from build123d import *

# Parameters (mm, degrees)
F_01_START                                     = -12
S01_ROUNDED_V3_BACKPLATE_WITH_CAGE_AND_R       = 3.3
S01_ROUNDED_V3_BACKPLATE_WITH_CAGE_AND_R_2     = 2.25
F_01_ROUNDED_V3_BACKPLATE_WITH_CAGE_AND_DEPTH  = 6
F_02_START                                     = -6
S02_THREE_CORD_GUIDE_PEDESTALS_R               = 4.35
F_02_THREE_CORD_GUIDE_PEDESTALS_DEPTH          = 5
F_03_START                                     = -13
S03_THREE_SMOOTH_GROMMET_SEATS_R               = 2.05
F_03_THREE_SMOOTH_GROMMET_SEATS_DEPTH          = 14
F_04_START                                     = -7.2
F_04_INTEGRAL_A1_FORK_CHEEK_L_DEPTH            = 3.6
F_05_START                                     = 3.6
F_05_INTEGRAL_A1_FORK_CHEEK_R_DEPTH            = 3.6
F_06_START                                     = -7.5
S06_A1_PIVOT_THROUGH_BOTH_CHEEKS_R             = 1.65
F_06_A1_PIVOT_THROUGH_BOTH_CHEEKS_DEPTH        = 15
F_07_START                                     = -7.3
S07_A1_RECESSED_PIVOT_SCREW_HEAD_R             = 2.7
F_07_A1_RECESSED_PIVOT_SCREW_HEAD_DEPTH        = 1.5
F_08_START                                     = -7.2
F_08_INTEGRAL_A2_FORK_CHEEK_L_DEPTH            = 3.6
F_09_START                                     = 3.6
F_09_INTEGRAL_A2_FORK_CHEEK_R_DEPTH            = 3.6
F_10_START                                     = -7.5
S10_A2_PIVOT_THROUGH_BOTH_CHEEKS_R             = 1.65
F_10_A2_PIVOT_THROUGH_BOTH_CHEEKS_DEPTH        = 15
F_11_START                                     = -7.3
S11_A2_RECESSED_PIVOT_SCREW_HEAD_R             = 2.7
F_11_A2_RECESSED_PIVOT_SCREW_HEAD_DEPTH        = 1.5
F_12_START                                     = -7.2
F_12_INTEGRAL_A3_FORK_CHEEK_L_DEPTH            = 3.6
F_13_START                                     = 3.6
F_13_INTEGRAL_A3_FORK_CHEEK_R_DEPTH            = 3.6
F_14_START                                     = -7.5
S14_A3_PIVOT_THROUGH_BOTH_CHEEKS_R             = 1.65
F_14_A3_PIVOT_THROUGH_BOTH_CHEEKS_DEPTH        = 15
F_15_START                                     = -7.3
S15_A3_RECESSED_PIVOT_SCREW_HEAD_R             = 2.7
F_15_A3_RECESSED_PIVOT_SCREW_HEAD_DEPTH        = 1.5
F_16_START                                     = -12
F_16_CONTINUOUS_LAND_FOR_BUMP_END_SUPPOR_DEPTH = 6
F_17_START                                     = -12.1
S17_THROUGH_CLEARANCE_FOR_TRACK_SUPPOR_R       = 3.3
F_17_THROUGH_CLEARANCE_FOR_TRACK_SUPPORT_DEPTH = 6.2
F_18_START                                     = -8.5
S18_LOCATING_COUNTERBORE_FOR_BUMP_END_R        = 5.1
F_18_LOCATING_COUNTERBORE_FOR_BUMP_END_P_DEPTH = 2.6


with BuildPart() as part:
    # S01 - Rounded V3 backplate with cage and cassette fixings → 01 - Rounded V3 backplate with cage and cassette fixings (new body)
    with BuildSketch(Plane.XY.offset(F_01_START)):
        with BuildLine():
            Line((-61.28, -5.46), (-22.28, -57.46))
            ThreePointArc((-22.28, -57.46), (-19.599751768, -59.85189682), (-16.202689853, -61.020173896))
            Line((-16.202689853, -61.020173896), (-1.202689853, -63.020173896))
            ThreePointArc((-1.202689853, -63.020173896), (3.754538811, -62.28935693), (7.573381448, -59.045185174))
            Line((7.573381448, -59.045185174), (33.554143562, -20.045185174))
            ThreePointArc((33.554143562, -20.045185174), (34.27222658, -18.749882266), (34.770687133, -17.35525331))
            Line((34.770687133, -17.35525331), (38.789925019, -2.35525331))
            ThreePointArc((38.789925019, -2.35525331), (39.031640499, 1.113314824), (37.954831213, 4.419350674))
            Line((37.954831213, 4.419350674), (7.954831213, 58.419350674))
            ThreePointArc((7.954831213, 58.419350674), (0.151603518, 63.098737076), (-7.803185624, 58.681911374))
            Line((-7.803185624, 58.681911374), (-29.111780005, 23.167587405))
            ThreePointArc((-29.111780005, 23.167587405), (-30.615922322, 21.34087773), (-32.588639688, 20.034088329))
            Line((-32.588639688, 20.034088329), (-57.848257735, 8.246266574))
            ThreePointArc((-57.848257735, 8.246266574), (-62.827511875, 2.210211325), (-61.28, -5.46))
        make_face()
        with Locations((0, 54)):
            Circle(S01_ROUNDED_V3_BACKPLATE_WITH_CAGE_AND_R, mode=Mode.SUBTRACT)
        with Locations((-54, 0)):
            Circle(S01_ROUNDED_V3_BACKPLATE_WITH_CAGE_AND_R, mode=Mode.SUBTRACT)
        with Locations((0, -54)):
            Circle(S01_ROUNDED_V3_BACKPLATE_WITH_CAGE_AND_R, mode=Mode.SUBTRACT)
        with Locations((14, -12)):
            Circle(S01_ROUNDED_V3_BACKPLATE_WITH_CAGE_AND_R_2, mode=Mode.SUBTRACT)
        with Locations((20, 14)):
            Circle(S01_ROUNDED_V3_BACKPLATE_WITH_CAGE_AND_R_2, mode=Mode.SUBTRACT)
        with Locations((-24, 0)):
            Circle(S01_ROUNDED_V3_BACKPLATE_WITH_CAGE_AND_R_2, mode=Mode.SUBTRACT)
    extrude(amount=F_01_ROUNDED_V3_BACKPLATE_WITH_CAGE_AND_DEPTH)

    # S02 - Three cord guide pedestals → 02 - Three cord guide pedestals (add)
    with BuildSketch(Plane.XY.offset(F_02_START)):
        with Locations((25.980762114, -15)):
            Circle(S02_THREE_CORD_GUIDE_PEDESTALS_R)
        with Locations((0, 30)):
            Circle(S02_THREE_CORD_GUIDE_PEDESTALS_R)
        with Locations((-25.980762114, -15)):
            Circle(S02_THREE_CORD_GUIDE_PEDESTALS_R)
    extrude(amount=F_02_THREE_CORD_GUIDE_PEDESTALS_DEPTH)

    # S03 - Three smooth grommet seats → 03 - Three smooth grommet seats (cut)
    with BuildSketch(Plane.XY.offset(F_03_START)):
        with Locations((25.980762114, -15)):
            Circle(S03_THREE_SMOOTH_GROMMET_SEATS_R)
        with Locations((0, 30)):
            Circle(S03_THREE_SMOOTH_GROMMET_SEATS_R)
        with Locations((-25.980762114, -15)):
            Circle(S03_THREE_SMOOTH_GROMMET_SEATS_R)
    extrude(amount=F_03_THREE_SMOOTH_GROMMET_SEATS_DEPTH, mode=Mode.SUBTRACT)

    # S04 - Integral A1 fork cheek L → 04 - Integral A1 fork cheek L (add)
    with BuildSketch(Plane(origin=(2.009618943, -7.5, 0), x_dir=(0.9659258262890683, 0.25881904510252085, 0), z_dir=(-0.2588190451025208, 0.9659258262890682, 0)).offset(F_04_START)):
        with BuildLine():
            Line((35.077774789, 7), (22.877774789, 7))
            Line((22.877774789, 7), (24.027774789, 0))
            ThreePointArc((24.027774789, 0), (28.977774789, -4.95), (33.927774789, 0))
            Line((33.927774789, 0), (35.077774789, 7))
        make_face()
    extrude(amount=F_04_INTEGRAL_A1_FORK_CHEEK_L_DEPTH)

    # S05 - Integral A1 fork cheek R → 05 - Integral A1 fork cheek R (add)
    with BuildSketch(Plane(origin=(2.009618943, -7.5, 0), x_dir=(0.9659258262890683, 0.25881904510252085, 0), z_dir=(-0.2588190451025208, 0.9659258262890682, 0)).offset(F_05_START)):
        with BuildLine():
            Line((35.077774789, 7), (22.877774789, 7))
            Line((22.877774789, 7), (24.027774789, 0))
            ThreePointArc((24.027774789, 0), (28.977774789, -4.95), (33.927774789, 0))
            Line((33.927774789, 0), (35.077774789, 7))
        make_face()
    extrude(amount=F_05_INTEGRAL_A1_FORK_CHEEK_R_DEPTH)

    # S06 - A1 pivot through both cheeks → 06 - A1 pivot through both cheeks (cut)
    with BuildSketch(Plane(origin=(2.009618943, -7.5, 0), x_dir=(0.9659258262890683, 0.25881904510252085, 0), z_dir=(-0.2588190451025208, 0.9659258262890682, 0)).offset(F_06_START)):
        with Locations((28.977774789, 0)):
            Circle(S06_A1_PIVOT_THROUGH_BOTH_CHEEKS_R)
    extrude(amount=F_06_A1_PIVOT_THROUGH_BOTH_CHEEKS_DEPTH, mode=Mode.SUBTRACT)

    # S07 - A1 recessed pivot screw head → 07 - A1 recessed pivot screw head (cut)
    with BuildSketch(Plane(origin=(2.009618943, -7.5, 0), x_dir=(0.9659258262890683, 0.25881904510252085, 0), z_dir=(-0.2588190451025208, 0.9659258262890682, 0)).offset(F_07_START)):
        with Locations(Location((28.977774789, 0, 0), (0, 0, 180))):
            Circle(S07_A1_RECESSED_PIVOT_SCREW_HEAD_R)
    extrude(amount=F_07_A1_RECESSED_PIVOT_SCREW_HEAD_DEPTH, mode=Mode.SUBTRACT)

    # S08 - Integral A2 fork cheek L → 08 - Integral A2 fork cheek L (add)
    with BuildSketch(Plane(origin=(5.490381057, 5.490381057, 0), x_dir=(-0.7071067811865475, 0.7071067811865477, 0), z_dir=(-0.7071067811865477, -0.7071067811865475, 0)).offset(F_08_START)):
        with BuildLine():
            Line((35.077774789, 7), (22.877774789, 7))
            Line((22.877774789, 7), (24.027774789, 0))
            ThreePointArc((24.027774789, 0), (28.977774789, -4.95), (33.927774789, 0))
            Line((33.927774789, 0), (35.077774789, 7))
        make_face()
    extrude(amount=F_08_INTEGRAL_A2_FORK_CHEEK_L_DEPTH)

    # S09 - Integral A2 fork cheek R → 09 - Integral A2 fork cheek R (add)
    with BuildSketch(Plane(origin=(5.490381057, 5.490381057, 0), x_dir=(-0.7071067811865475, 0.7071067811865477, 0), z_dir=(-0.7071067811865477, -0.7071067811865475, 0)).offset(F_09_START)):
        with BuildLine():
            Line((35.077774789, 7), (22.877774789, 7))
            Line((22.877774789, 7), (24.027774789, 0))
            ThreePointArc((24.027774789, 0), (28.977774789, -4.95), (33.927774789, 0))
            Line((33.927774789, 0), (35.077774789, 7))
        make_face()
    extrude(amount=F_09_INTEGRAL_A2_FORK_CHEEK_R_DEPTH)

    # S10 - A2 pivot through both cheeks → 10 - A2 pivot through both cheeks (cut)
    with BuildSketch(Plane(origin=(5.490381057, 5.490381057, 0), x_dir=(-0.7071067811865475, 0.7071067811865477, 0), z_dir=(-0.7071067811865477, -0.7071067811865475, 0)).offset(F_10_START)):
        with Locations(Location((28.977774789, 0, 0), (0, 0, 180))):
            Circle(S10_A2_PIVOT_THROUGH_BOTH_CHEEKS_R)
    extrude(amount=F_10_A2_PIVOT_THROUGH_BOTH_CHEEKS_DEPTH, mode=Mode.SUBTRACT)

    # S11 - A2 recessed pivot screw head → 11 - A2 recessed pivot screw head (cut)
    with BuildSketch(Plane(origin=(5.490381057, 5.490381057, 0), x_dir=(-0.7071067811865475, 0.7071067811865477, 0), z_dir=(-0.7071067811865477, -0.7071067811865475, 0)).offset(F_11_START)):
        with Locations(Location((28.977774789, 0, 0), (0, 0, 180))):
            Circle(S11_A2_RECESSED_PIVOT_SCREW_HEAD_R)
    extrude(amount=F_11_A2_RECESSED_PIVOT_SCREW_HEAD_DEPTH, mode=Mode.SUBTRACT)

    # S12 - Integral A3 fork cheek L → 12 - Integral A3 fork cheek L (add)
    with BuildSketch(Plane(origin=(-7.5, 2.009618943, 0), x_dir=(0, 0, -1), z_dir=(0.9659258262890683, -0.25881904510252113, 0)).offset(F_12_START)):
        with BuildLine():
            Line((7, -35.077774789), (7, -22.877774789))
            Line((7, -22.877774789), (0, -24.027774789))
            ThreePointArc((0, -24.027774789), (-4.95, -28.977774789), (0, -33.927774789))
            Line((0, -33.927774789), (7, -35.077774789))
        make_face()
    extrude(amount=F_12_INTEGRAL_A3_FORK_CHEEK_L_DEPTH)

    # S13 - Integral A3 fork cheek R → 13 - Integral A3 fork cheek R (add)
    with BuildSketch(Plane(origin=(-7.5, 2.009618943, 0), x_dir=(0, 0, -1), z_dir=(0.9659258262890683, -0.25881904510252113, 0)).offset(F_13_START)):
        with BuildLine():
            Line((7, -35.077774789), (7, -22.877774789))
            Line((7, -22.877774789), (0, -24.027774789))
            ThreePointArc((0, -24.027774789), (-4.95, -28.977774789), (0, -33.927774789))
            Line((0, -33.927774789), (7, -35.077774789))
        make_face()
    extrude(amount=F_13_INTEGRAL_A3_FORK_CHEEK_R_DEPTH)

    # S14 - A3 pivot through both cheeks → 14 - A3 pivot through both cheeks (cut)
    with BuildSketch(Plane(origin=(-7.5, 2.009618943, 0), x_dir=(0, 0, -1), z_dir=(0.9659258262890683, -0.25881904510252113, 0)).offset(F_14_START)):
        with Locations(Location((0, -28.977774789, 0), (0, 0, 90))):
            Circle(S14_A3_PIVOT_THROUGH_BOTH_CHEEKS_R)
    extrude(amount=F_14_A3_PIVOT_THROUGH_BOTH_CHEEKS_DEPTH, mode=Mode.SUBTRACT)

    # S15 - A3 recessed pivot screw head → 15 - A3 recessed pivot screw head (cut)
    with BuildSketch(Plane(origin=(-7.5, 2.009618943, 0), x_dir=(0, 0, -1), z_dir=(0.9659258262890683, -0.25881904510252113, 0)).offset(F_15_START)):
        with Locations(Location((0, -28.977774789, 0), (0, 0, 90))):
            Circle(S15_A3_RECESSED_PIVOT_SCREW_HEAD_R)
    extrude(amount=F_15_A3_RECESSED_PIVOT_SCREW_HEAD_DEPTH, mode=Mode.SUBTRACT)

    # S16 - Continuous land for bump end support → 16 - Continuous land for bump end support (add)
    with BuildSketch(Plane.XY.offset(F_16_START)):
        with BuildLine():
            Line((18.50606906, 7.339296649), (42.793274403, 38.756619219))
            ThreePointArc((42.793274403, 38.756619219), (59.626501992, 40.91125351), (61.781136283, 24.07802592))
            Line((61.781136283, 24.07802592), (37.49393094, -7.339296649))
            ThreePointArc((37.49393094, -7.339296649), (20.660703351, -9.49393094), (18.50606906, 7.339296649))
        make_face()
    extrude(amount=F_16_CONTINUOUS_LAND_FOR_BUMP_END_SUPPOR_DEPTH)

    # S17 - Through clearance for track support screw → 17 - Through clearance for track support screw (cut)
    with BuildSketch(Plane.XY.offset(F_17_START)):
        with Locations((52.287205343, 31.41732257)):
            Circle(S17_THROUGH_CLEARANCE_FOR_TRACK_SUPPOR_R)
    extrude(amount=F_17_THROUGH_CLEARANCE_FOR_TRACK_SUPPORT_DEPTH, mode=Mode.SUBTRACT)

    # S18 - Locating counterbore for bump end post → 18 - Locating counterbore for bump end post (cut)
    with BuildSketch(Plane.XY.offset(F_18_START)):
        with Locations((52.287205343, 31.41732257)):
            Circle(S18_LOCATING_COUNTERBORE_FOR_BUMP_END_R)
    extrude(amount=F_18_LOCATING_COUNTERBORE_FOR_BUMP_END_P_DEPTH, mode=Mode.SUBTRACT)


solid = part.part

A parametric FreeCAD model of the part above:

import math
import FreeCAD as App
import Part
import Sketcher
from FreeCAD import Vector
Q = App.Units.Quantity

doc = App.newDocument("Part")
body = doc.addObject("PartDesign::Body", "Body")

# Sketch on XY plane
sketch1 = body.newObject("Sketcher::SketchObject", "Sketch")
sketch1.AttachmentSupport = (doc.getObject("XY_Plane"), [""])
sketch1.MapMode = "FlatFace"
sketch1.AttachmentOffset = App.Placement(Vector(0, 0, -12), App.Rotation())
sketch1.addGeometry(Part.LineSegment(Vector(-61.3, -5.5, 0), Vector(-22.3, -57.5, 0)), False)
sketch1.addGeometry(Part.ArcOfCircle(Part.Circle(Vector(-15, -52, 0), Vector(0, 0, 1), 9.1), math.radians(-143), math.radians(-98)), False)
sketch1.addGeometry(Part.LineSegment(Vector(-16.2, -61, 0), Vector(-1.2, -63, 0)), False)
sketch1.addGeometry(Part.ArcOfCircle(Part.Circle(Vector(0, -54, 0), Vector(0, 0, 1), 9.1), math.radians(-98), math.radians(-34)), False)
sketch1.addGeometry(Part.LineSegment(Vector(7.6, -59, 0), Vector(33.6, -20, 0)), False)
sketch1.addGeometry(Part.ArcOfCircle(Part.Circle(Vector(26, -15, 0), Vector(0, 0, 1), 9.1), math.radians(-33.67), math.radians(-15)), False)
sketch1.addGeometry(Part.LineSegment(Vector(34.8, -17.4, 0), Vector(38.8, -2.4, 0)), False)
sketch1.addGeometry(Part.ArcOfCircle(Part.Circle(Vector(30, 0, 0), Vector(0, 0, 1), 9.1), math.radians(-15), math.radians(29)), False)
sketch1.addGeometry(Part.LineSegment(Vector(38, 4.4, 0), Vector(8, 58.4, 0)), False)
sketch1.addGeometry(Part.ArcOfCircle(Part.Circle(Vector(0, 54, 0), Vector(0, 0, 1), 9.1), math.radians(29), math.radians(149)), False)
sketch1.addGeometry(Part.LineSegment(Vector(-7.8, 58.7, 0), Vector(-29.1, 23.2, 0)), False)
sketch1.addGeometry(Part.ArcOfCircle(Part.Circle(Vector(-36, 27.3, 0), Vector(0, 0, 1), 8), math.radians(-65), math.radians(-31)), False)
sketch1.addGeometry(Part.LineSegment(Vector(-32.6, 20, 0), Vector(-57.8, 8.2, 0)), False)
sketch1.addGeometry(Part.ArcOfCircle(Part.Circle(Vector(-54, 0, 0), Vector(0, 0, 1), 9.1), math.radians(115), math.radians(217)), False)
sketch1.addGeometry(Part.Circle(Vector(0, -54, 0), Vector(0, 0, 1), 3.3), False)
sketch1.addGeometry(Part.Circle(Vector(14, -12, 0), Vector(0, 0, 1), 2.2), False)
sketch1.addGeometry(Part.Circle(Vector(-54, 0, 0), Vector(0, 0, 1), 3.3), False)
sketch1.addGeometry(Part.Circle(Vector(-24, 0, 0), Vector(0, 0, 1), 2.2), False)
sketch1.addGeometry(Part.Circle(Vector(20, 14, 0), Vector(0, 0, 1), 2.2), False)
sketch1.addGeometry(Part.Circle(Vector(0, 54, 0), Vector(0, 0, 1), 3.3), False)
sketch1.addConstraint(Sketcher.Constraint("Tangent", 0, 2, 1, 1))
sketch1.addConstraint(Sketcher.Constraint("Tangent", 1, 2, 2, 1))
sketch1.addConstraint(Sketcher.Constraint("Tangent", 2, 2, 3, 1))
sketch1.addConstraint(Sketcher.Constraint("Tangent", 3, 2, 4, 1))
sketch1.addConstraint(Sketcher.Constraint("Tangent", 4, 2, 5, 1))
sketch1.addConstraint(Sketcher.Constraint("Tangent", 5, 2, 6, 1))
sketch1.addConstraint(Sketcher.Constraint("Tangent", 6, 2, 7, 1))
sketch1.addConstraint(Sketcher.Constraint("Tangent", 7, 2, 8, 1))
sketch1.addConstraint(Sketcher.Constraint("Tangent", 8, 2, 9, 1))
sketch1.addConstraint(Sketcher.Constraint("Tangent", 9, 2, 10, 1))
sketch1.addConstraint(Sketcher.Constraint("Tangent", 10, 2, 11, 2))
sketch1.addConstraint(Sketcher.Constraint("Tangent", 11, 1, 12, 1))
sketch1.addConstraint(Sketcher.Constraint("Tangent", 12, 2, 13, 1))
sketch1.addConstraint(Sketcher.Constraint("Tangent", 13, 2, 0, 1))
sketch1.addConstraint(Sketcher.Constraint("Coincident", 14, 3, 3, 3))
sketch1.addConstraint(Sketcher.Constraint("Coincident", 16, 3, 13, 3))
sketch1.addConstraint(Sketcher.Constraint("Coincident", 19, 3, 9, 3))
sketch1.addConstraint(Sketcher.Constraint("Equal", 1, 3))
sketch1.addConstraint(Sketcher.Constraint("Equal", 3, 5))
sketch1.addConstraint(Sketcher.Constraint("Equal", 5, 7))
sketch1.addConstraint(Sketcher.Constraint("Equal", 7, 9))
sketch1.addConstraint(Sketcher.Constraint("Equal", 9, 13))
sketch1.addConstraint(Sketcher.Constraint("Equal", 14, 16))
sketch1.addConstraint(Sketcher.Constraint("Equal", 15, 17))
sketch1.addConstraint(Sketcher.Constraint("Equal", 17, 18))
sketch1.addConstraint(Sketcher.Constraint("Equal", 16, 19))
sketch1.addConstraint(Sketcher.Constraint("Symmetric", 3, 3, 9, 3, -1, 1))
sketch1.addConstraint(Sketcher.Constraint("PointOnObject", 3, 3, -2))
sketch1.addConstraint(Sketcher.Constraint("PointOnObject", 7, 3, -1))
sketch1.addConstraint(Sketcher.Constraint("PointOnObject", 13, 3, -1))
sketch1.addConstraint(Sketcher.Constraint("PointOnObject", 17, 3, -1))
sketch1.addConstraint(Sketcher.Constraint("Radius", 11, 8.0))
sketch1.addConstraint(Sketcher.Constraint("Diameter", 14, 6.6))
sketch1.addConstraint(Sketcher.Constraint("Diameter", 15, 4.5))
sketch1.addConstraint(Sketcher.Constraint("Radius", 1, 9.1))
sketch1.addConstraint(Sketcher.Constraint("Angle", 6, Q("75 deg")))
sketch1.addConstraint(Sketcher.Constraint("Distance", 0, 65.0))
sketch1.addConstraint(Sketcher.Constraint("DistanceX", 1, 3, -1, 1, 15.0))
sketch1.addConstraint(Sketcher.Constraint("DistanceY", 1, 3, -1, 1, 52.0))
sketch1.addConstraint(Sketcher.Constraint("DistanceY", 3, 3, -1, 1, 54.0))
sketch1.addConstraint(Sketcher.Constraint("DistanceY", 5, 3, -1, 1, 15.0))
sketch1.addConstraint(Sketcher.Constraint("DistanceX", -1, 1, 7, 3, 30.0))
sketch1.addConstraint(Sketcher.Constraint("DistanceX", -1, 1, 15, 3, 14.0))
sketch1.addConstraint(Sketcher.Constraint("DistanceY", 15, 3, -1, 1, 12.0))
sketch1.addConstraint(Sketcher.Constraint("DistanceX", 17, 3, -1, 1, 24.0))
sketch1.addConstraint(Sketcher.Constraint("DistanceX", -1, 1, 18, 3, 20.0))
sketch1.addConstraint(Sketcher.Constraint("DistanceY", -1, 1, 18, 3, 14.0))
sketch1.addConstraint(Sketcher.Constraint("DistanceY", 11, 1, 10, 2, 3.133499))
sketch1.addConstraint(Sketcher.Constraint("Distance", 12, 27.874738))
pad1 = body.newObject("PartDesign::Pad", "Pad")
pad1.Profile = sketch1
pad1.Length = 6

# Sketch on XY plane
sketch2 = body.newObject("Sketcher::SketchObject", "Sketch001")
sketch2.AttachmentSupport = (doc.getObject("XY_Plane"), [""])
sketch2.MapMode = "FlatFace"
sketch2.AttachmentOffset = App.Placement(Vector(0, 0, -6), App.Rotation())
sketch2.addGeometry(Part.Circle(Vector(26, -15, 0), Vector(0, 0, 1), 4.3), False)
sketch2.addGeometry(Part.Circle(Vector(0, 30, 0), Vector(0, 0, 1), 4.3), False)
sketch2.addGeometry(Part.Circle(Vector(-26, -15, 0), Vector(0, 0, 1), 4.3), False)
sketch2.addConstraint(Sketcher.Constraint("Equal", 0, 1))
sketch2.addConstraint(Sketcher.Constraint("Equal", 1, 2))
sketch2.addConstraint(Sketcher.Constraint("Symmetric", 0, 3, 2, 3, -2))
sketch2.addConstraint(Sketcher.Constraint("PointOnObject", 1, 3, -2))
sketch2.addConstraint(Sketcher.Constraint("Diameter", 0, 8.7))
sketch2.addConstraint(Sketcher.Constraint("DistanceY", 0, 3, -1, 1, 15.0))
sketch2.addConstraint(Sketcher.Constraint("DistanceY", -1, 1, 1, 3, 30.0))
sketch2.addConstraint(Sketcher.Constraint("DistanceX", -1, 1, 0, 3, 25.980762))
pad2 = body.newObject("PartDesign::Pad", "Pad001")
pad2.Profile = sketch2
pad2.Length = 5

# Sketch on XY plane
sketch3 = body.newObject("Sketcher::SketchObject", "Sketch002")
sketch3.AttachmentSupport = (doc.getObject("XY_Plane"), [""])
sketch3.MapMode = "FlatFace"
sketch3.AttachmentOffset = App.Placement(Vector(0, 0, -13), App.Rotation())
sketch3.addGeometry(Part.Circle(Vector(26, -15, 0), Vector(0, 0, 1), 2), False)
sketch3.addGeometry(Part.Circle(Vector(0, 30, 0), Vector(0, 0, 1), 2), False)
sketch3.addGeometry(Part.Circle(Vector(-26, -15, 0), Vector(0, 0, 1), 2), False)
sketch3.addConstraint(Sketcher.Constraint("Equal", 0, 1))
sketch3.addConstraint(Sketcher.Constraint("Equal", 1, 2))
sketch3.addConstraint(Sketcher.Constraint("Symmetric", 0, 3, 2, 3, -2))
sketch3.addConstraint(Sketcher.Constraint("PointOnObject", 1, 3, -2))
sketch3.addConstraint(Sketcher.Constraint("Diameter", 0, 4.1))
sketch3.addConstraint(Sketcher.Constraint("DistanceY", 0, 3, -1, 1, 15.0))
sketch3.addConstraint(Sketcher.Constraint("DistanceY", -1, 1, 1, 3, 30.0))
sketch3.addConstraint(Sketcher.Constraint("DistanceX", -1, 1, 0, 3, 25.980762))
pocket1 = body.newObject("PartDesign::Pocket", "Pocket")
pocket1.Profile = sketch3
pocket1.Length = 14
pocket1.Reversed = True

# Sketch on an angled plane
sketch4 = body.newObject("Sketcher::SketchObject", "Sketch003")
sketch4.Placement = App.Placement(Vector(3.873116, -14.454666, 0), App.Rotation(Vector(0.965925826, 0.258819045, 0), Vector(0, 0, -0.999999999), Vector(-0.258819045, 0.965925826, 0), "ZXY"))
sketch4.addGeometry(Part.LineSegment(Vector(35.1, 7, 0), Vector(22.9, 7, 0)), False)
sketch4.addGeometry(Part.LineSegment(Vector(22.9, 7, 0), Vector(24, 0, 0)), False)
sketch4.addGeometry(Part.ArcOfCircle(Part.Circle(Vector(29, 0, 0), Vector(0, 0, 1), 5), math.radians(180), math.radians(360)), False)
sketch4.addGeometry(Part.LineSegment(Vector(33.9, 0, 0), Vector(35.1, 7, 0)), False)
sketch4.addConstraint(Sketcher.Constraint("Coincident", 0, 2, 1, 1))
sketch4.addConstraint(Sketcher.Constraint("Coincident", 1, 2, 2, 1))
sketch4.addConstraint(Sketcher.Constraint("Coincident", 2, 2, 3, 1))
sketch4.addConstraint(Sketcher.Constraint("Coincident", 3, 2, 0, 1))
sketch4.addConstraint(Sketcher.Constraint("Horizontal", 0))
sketch4.addConstraint(Sketcher.Constraint("PointOnObject", 2, 3, -1))
sketch4.addConstraint(Sketcher.Constraint("PointOnObject", 1, 2, -1))
sketch4.addConstraint(Sketcher.Constraint("PointOnObject", 2, 2, -1))
sketch4.addConstraint(Sketcher.Constraint("Equal", 1, 3))
sketch4.addConstraint(Sketcher.Constraint("Radius", 2, 4.95))
sketch4.addConstraint(Sketcher.Constraint("DistanceX", 0, 2, 0, 1, 12.2))
sketch4.addConstraint(Sketcher.Constraint("DistanceY", -1, 1, 0, 2, 7.0))
sketch4.addConstraint(Sketcher.Constraint("DistanceX", -1, 1, 2, 3, 28.977775))
pad3 = body.newObject("PartDesign::Pad", "Pad002")
pad3.Profile = sketch4
pad3.Length = 3.6

# Sketch on an angled plane
sketch5 = body.newObject("Sketcher::SketchObject", "Sketch004")
sketch5.Placement = App.Placement(Vector(1.07787, -4.022667, 0), App.Rotation(Vector(0.965925826, 0.258819045, 0), Vector(0, 0, -0.999999999), Vector(-0.258819045, 0.965925826, 0), "ZXY"))
sketch5.addGeometry(Part.LineSegment(Vector(35.1, 7, 0), Vector(22.9, 7, 0)), False)
sketch5.addGeometry(Part.LineSegment(Vector(22.9, 7, 0), Vector(24, 0, 0)), False)
sketch5.addGeometry(Part.ArcOfCircle(Part.Circle(Vector(29, 0, 0), Vector(0, 0, 1), 5), math.radians(180), math.radians(360)), False)
sketch5.addGeometry(Part.LineSegment(Vector(33.9, 0, 0), Vector(35.1, 7, 0)), False)
sketch5.addConstraint(Sketcher.Constraint("Coincident", 0, 2, 1, 1))
sketch5.addConstraint(Sketcher.Constraint("Coincident", 1, 2, 2, 1))
sketch5.addConstraint(Sketcher.Constraint("Coincident", 2, 2, 3, 1))
sketch5.addConstraint(Sketcher.Constraint("Coincident", 3, 2, 0, 1))
sketch5.addConstraint(Sketcher.Constraint("Horizontal", 0))
sketch5.addConstraint(Sketcher.Constraint("PointOnObject", 2, 3, -1))
sketch5.addConstraint(Sketcher.Constraint("PointOnObject", 1, 2, -1))
sketch5.addConstraint(Sketcher.Constraint("PointOnObject", 2, 2, -1))
sketch5.addConstraint(Sketcher.Constraint("Equal", 1, 3))
sketch5.addConstraint(Sketcher.Constraint("Radius", 2, 4.95))
sketch5.addConstraint(Sketcher.Constraint("DistanceX", 0, 2, 0, 1, 12.2))
sketch5.addConstraint(Sketcher.Constraint("DistanceY", -1, 1, 0, 2, 7.0))
sketch5.addConstraint(Sketcher.Constraint("DistanceX", -1, 1, 2, 3, 28.977775))
pad4 = body.newObject("PartDesign::Pad", "Pad003")
pad4.Profile = sketch5
pad4.Length = 3.6

# Sketch on an angled plane
sketch6 = body.newObject("Sketcher::SketchObject", "Sketch005")
sketch6.Placement = App.Placement(Vector(3.950762, -14.744444, 0), App.Rotation(Vector(0.965925826, 0.258819045, 0), Vector(0, 0, -0.999999999), Vector(-0.258819045, 0.965925826, 0), "ZXY"))
sketch6.addGeometry(Part.Circle(Vector(29, 0, 0), Vector(0, 0, 1), 1.6), False)
sketch6.addConstraint(Sketcher.Constraint("PointOnObject", 0, 3, -1))
sketch6.addConstraint(Sketcher.Constraint("Diameter", 0, 3.3))
sketch6.addConstraint(Sketcher.Constraint("DistanceX", -1, 1, 0, 3, 28.977775))
pocket2 = body.newObject("PartDesign::Pocket", "Pocket001")
pocket2.Profile = sketch6
pocket2.Length = 15
pocket2.Reversed = True

# Sketch on an angled plane
sketch7 = body.newObject("Sketcher::SketchObject", "Sketch006")
sketch7.Placement = App.Placement(Vector(3.898998, -14.551259, 0), App.Rotation(Vector(0.965925826, 0.258819045, 0), Vector(0, 0, -0.999999999), Vector(-0.258819045, 0.965925826, 0), "ZXY"))
sketch7.addGeometry(Part.Circle(Vector(29, 0, 0), Vector(0, 0, 1), 2.7), False)
sketch7.addConstraint(Sketcher.Constraint("PointOnObject", 0, 3, -1))
sketch7.addConstraint(Sketcher.Constraint("Diameter", 0, 5.4))
sketch7.addConstraint(Sketcher.Constraint("DistanceX", -1, 1, 0, 3, 28.977775))
pocket3 = body.newObject("PartDesign::Pocket", "Pocket002")
pocket3.Profile = sketch7
pocket3.Length = 1.5
pocket3.Reversed = True

# Sketch on an angled plane
sketch8 = body.newObject("Sketcher::SketchObject", "Sketch007")
sketch8.Placement = App.Placement(Vector(10.58155, 10.58155, 0), App.Rotation(Vector(-0.707106781, 0.707106781, 0), Vector(0, 0, -0.999999999), Vector(-0.707106781, -0.707106781, 0), "ZXY"))
sketch8.addGeometry(Part.LineSegment(Vector(35.1, 7, 0), Vector(22.9, 7, 0)), False)
sketch8.addGeometry(Part.LineSegment(Vector(22.9, 7, 0), Vector(24, 0, 0)), False)
sketch8.addGeometry(Part.ArcOfCircle(Part.Circle(Vector(29, 0, 0), Vector(0, 0, 1), 5), math.radians(180), math.radians(360)), False)
sketch8.addGeometry(Part.LineSegment(Vector(33.9, 0, 0), Vector(35.1, 7, 0)), False)
sketch8.addConstraint(Sketcher.Constraint("Coincident", 0, 2, 1, 1))
sketch8.addConstraint(Sketcher.Constraint("Coincident", 1, 2, 2, 1))
sketch8.addConstraint(Sketcher.Constraint("Coincident", 2, 2, 3, 1))
sketch8.addConstraint(Sketcher.Constraint("Coincident", 3, 2, 0, 1))
sketch8.addConstraint(Sketcher.Constraint("Horizontal", 0))
sketch8.addConstraint(Sketcher.Constraint("PointOnObject", 2, 3, -1))
sketch8.addConstraint(Sketcher.Constraint("PointOnObject", 1, 2, -1))
sketch8.addConstraint(Sketcher.Constraint("PointOnObject", 2, 2, -1))
sketch8.addConstraint(Sketcher.Constraint("Equal", 1, 3))
sketch8.addConstraint(Sketcher.Constraint("Radius", 2, 4.95))
sketch8.addConstraint(Sketcher.Constraint("DistanceX", 0, 2, 0, 1, 12.2))
sketch8.addConstraint(Sketcher.Constraint("DistanceY", -1, 1, 0, 2, 7.0))
sketch8.addConstraint(Sketcher.Constraint("DistanceX", -1, 1, 2, 3, 28.977775))
pad5 = body.newObject("PartDesign::Pad", "Pad004")
pad5.Profile = sketch8
pad5.Length = 3.6

# Sketch on an angled plane
sketch9 = body.newObject("Sketcher::SketchObject", "Sketch008")
sketch9.Placement = App.Placement(Vector(2.944797, 2.944797, 0), App.Rotation(Vector(-0.707106781, 0.707106781, 0), Vector(0, 0, -0.999999999), Vector(-0.707106781, -0.707106781, 0), "ZXY"))
sketch9.addGeometry(Part.LineSegment(Vector(35.1, 7, 0), Vector(22.9, 7, 0)), False)
sketch9.addGeometry(Part.LineSegment(Vector(22.9, 7, 0), Vector(24, 0, 0)), False)
sketch9.addGeometry(Part.ArcOfCircle(Part.Circle(Vector(29, 0, 0), Vector(0, 0, 1), 5), math.radians(180), math.radians(360)), False)
sketch9.addGeometry(Part.LineSegment(Vector(33.9, 0, 0), Vector(35.1, 7, 0)), False)
sketch9.addConstraint(Sketcher.Constraint("Coincident", 0, 2, 1, 1))
sketch9.addConstraint(Sketcher.Constraint("Coincident", 1, 2, 2, 1))
sketch9.addConstraint(Sketcher.Constraint("Coincident", 2, 2, 3, 1))
sketch9.addConstraint(Sketcher.Constraint("Coincident", 3, 2, 0, 1))
sketch9.addConstraint(Sketcher.Constraint("Horizontal", 0))
sketch9.addConstraint(Sketcher.Constraint("PointOnObject", 2, 3, -1))
sketch9.addConstraint(Sketcher.Constraint("PointOnObject", 1, 2, -1))
sketch9.addConstraint(Sketcher.Constraint("PointOnObject", 2, 2, -1))
sketch9.addConstraint(Sketcher.Constraint("Equal", 1, 3))
sketch9.addConstraint(Sketcher.Constraint("Radius", 2, 4.95))
sketch9.addConstraint(Sketcher.Constraint("DistanceX", 0, 2, 0, 1, 12.2))
sketch9.addConstraint(Sketcher.Constraint("DistanceY", -1, 1, 0, 2, 7.0))
sketch9.addConstraint(Sketcher.Constraint("DistanceX", -1, 1, 2, 3, 28.977775))
pad6 = body.newObject("PartDesign::Pad", "Pad005")
pad6.Profile = sketch9
pad6.Length = 3.6

# Sketch on an angled plane
sketch10 = body.newObject("Sketcher::SketchObject", "Sketch009")
sketch10.Placement = App.Placement(Vector(10.793682, 10.793682, 0), App.Rotation(Vector(-0.707106781, 0.707106781, 0), Vector(0, 0, -0.999999999), Vector(-0.707106781, -0.707106781, 0), "ZXY"))
sketch10.addGeometry(Part.Circle(Vector(29, 0, 0), Vector(0, 0, 1), 1.6), False)
sketch10.addConstraint(Sketcher.Constraint("PointOnObject", 0, 3, -1))
sketch10.addConstraint(Sketcher.Constraint("Diameter", 0, 3.3))
sketch10.addConstraint(Sketcher.Constraint("DistanceX", -1, 1, 0, 3, 28.977775))
pocket4 = body.newObject("PartDesign::Pocket", "Pocket003")
pocket4.Profile = sketch10
pocket4.Length = 15
pocket4.Reversed = True

# Sketch on an angled plane
sketch11 = body.newObject("Sketcher::SketchObject", "Sketch010")
sketch11.Placement = App.Placement(Vector(10.652261, 10.652261, 0), App.Rotation(Vector(-0.707106781, 0.707106781, 0), Vector(0, 0, -0.999999999), Vector(-0.707106781, -0.707106781, 0), "ZXY"))
sketch11.addGeometry(Part.Circle(Vector(29, 0, 0), Vector(0, 0, 1), 2.7), False)
sketch11.addConstraint(Sketcher.Constraint("PointOnObject", 0, 3, -1))
sketch11.addConstraint(Sketcher.Constraint("Diameter", 0, 5.4))
sketch11.addConstraint(Sketcher.Constraint("DistanceX", -1, 1, 0, 3, 28.977775))
pocket5 = body.newObject("PartDesign::Pocket", "Pocket004")
pocket5.Profile = sketch11
pocket5.Length = 1.5
pocket5.Reversed = True

# Sketch on an angled plane
sketch12 = body.newObject("Sketcher::SketchObject", "Sketch011")
sketch12.Placement = App.Placement(Vector(-14.454666, 3.873116, 0), App.Rotation(Vector(0, 0, -1), Vector(0.258819045, 0.965925826, 0), Vector(0.965925826, -0.258819045, 0), "ZXY"))
sketch12.addGeometry(Part.LineSegment(Vector(7, -35.1, 0), Vector(7, -22.9, 0)), False)
sketch12.addGeometry(Part.LineSegment(Vector(7, -22.9, 0), Vector(0, -24, 0)), False)
sketch12.addGeometry(Part.ArcOfCircle(Part.Circle(Vector(0, -29, 0), Vector(0, 0, 1), 5), math.radians(90), math.radians(270)), False)
sketch12.addGeometry(Part.LineSegment(Vector(0, -33.9, 0), Vector(7, -35.1, 0)), False)
sketch12.addConstraint(Sketcher.Constraint("Coincident", 0, 2, 1, 1))
sketch12.addConstraint(Sketcher.Constraint("Coincident", 1, 2, 2, 1))
sketch12.addConstraint(Sketcher.Constraint("Coincident", 2, 2, 3, 1))
sketch12.addConstraint(Sketcher.Constraint("Coincident", 3, 2, 0, 1))
sketch12.addConstraint(Sketcher.Constraint("Vertical", 0))
sketch12.addConstraint(Sketcher.Constraint("PointOnObject", 2, 3, -2))
sketch12.addConstraint(Sketcher.Constraint("PointOnObject", 1, 2, -2))
sketch12.addConstraint(Sketcher.Constraint("PointOnObject", 2, 2, -2))
sketch12.addConstraint(Sketcher.Constraint("Equal", 1, 3))
sketch12.addConstraint(Sketcher.Constraint("Radius", 2, 4.95))
sketch12.addConstraint(Sketcher.Constraint("DistanceY", 0, 1, 0, 2, 12.2))
sketch12.addConstraint(Sketcher.Constraint("DistanceX", -1, 1, 0, 2, 7.0))
sketch12.addConstraint(Sketcher.Constraint("DistanceY", 2, 3, -1, 1, 28.977775))
pad7 = body.newObject("PartDesign::Pad", "Pad006")
pad7.Profile = sketch12
pad7.Length = 3.6

# Sketch on an angled plane
sketch13 = body.newObject("Sketcher::SketchObject", "Sketch012")
sketch13.Placement = App.Placement(Vector(-4.022667, 1.07787, 0), App.Rotation(Vector(0, 0, -1), Vector(0.258819045, 0.965925826, 0), Vector(0.965925826, -0.258819045, 0), "ZXY"))
sketch13.addGeometry(Part.LineSegment(Vector(7, -35.1, 0), Vector(7, -22.9, 0)), False)
sketch13.addGeometry(Part.LineSegment(Vector(7, -22.9, 0), Vector(0, -24, 0)), False)
sketch13.addGeometry(Part.ArcOfCircle(Part.Circle(Vector(0, -29, 0), Vector(0, 0, 1), 5), math.radians(90), math.radians(270)), False)
sketch13.addGeometry(Part.LineSegment(Vector(0, -33.9, 0), Vector(7, -35.1, 0)), False)
sketch13.addConstraint(Sketcher.Constraint("Coincident", 0, 2, 1, 1))
sketch13.addConstraint(Sketcher.Constraint("Coincident", 1, 2, 2, 1))
sketch13.addConstraint(Sketcher.Constraint("Coincident", 2, 2, 3, 1))
sketch13.addConstraint(Sketcher.Constraint("Coincident", 3, 2, 0, 1))
sketch13.addConstraint(Sketcher.Constraint("Vertical", 0))
sketch13.addConstraint(Sketcher.Constraint("PointOnObject", 2, 3, -2))
sketch13.addConstraint(Sketcher.Constraint("PointOnObject", 1, 2, -2))
sketch13.addConstraint(Sketcher.Constraint("PointOnObject", 2, 2, -2))
sketch13.addConstraint(Sketcher.Constraint("Equal", 1, 3))
sketch13.addConstraint(Sketcher.Constraint("Radius", 2, 4.95))
sketch13.addConstraint(Sketcher.Constraint("DistanceY", 0, 1, 0, 2, 12.2))
sketch13.addConstraint(Sketcher.Constraint("DistanceX", -1, 1, 0, 2, 7.0))
sketch13.addConstraint(Sketcher.Constraint("DistanceY", 2, 3, -1, 1, 28.977775))
pad8 = body.newObject("PartDesign::Pad", "Pad007")
pad8.Profile = sketch13
pad8.Length = 3.6

# Sketch on an angled plane
sketch14 = body.newObject("Sketcher::SketchObject", "Sketch013")
sketch14.Placement = App.Placement(Vector(-14.744444, 3.950762, 0), App.Rotation(Vector(0, 0, -1), Vector(0.258819045, 0.965925826, 0), Vector(0.965925826, -0.258819045, 0), "ZXY"))
sketch14.addGeometry(Part.Circle(Vector(0, -29, 0), Vector(0, 0, 1), 1.6), False)
sketch14.addConstraint(Sketcher.Constraint("PointOnObject", 0, 3, -2))
sketch14.addConstraint(Sketcher.Constraint("Diameter", 0, 3.3))
sketch14.addConstraint(Sketcher.Constraint("DistanceY", 0, 3, -1, 1, 28.977775))
pocket6 = body.newObject("PartDesign::Pocket", "Pocket005")
pocket6.Profile = sketch14
pocket6.Length = 15
pocket6.Reversed = True

# Sketch on an angled plane
sketch15 = body.newObject("Sketcher::SketchObject", "Sketch014")
sketch15.Placement = App.Placement(Vector(-14.551259, 3.898998, 0), App.Rotation(Vector(0, 0, -1), Vector(0.258819045, 0.965925826, 0), Vector(0.965925826, -0.258819045, 0), "ZXY"))
sketch15.addGeometry(Part.Circle(Vector(0, -29, 0), Vector(0, 0, 1), 2.7), False)
sketch15.addConstraint(Sketcher.Constraint("PointOnObject", 0, 3, -2))
sketch15.addConstraint(Sketcher.Constraint("Diameter", 0, 5.4))
sketch15.addConstraint(Sketcher.Constraint("DistanceY", 0, 3, -1, 1, 28.977775))
pocket7 = body.newObject("PartDesign::Pocket", "Pocket006")
pocket7.Profile = sketch15
pocket7.Length = 1.5
pocket7.Reversed = True

# Sketch on XY plane
sketch16 = body.newObject("Sketcher::SketchObject", "Sketch015")
sketch16.AttachmentSupport = (doc.getObject("XY_Plane"), [""])
sketch16.MapMode = "FlatFace"
sketch16.AttachmentOffset = App.Placement(Vector(0, 0, -12), App.Rotation())
sketch16.addGeometry(Part.LineSegment(Vector(43, 39, 0), Vector(19, 7, 0)), False)
sketch16.addGeometry(Part.ArcOfCircle(Part.Circle(Vector(28, 0, 0), Vector(0, 0, 1), 12), math.radians(142), math.radians(322)), False)
sketch16.addGeometry(Part.LineSegment(Vector(37, -7, 0), Vector(62, 24, 0)), False)
sketch16.addGeometry(Part.ArcOfCircle(Part.Circle(Vector(52, 31, 0), Vector(0, 0, 1), 12), math.radians(-38), math.radians(142)), False)
sketch16.addConstraint(Sketcher.Constraint("Tangent", 0, 2, 1, 1))
sketch16.addConstraint(Sketcher.Constraint("Tangent", 1, 2, 2, 1))
sketch16.addConstraint(Sketcher.Constraint("Tangent", 2, 2, 3, 1))
sketch16.addConstraint(Sketcher.Constraint("Tangent", 3, 2, 0, 1))
sketch16.addConstraint(Sketcher.Constraint("Equal", 1, 3))
sketch16.addConstraint(Sketcher.Constraint("PointOnObject", 1, 3, -1))
sketch16.addConstraint(Sketcher.Constraint("Radius", 1, 12.0))
sketch16.addConstraint(Sketcher.Constraint("DistanceX", -1, 1, 1, 3, 28.0))
sketch16.addConstraint(Sketcher.Constraint("DistanceX", -1, 1, 0, 2, 18.506069))
sketch16.addConstraint(Sketcher.Constraint("DistanceY", -1, 1, 3, 2, 38.756619))
pad9 = body.newObject("PartDesign::Pad", "Pad008")
pad9.Profile = sketch16
pad9.Length = 6

# Sketch on XY plane
sketch17 = body.newObject("Sketcher::SketchObject", "Sketch016")
sketch17.AttachmentSupport = (doc.getObject("XY_Plane"), [""])
sketch17.MapMode = "FlatFace"
sketch17.AttachmentOffset = App.Placement(Vector(0, 0, -12.1), App.Rotation())
sketch17.addGeometry(Part.Circle(Vector(52.3, 31.4, 0), Vector(0, 0, 1), 3.3), False)
sketch17.addConstraint(Sketcher.Constraint("Diameter", 0, 6.6))
sketch17.addConstraint(Sketcher.Constraint("DistanceX", -1, 1, 0, 3, 52.287205))
sketch17.addConstraint(Sketcher.Constraint("DistanceY", -1, 1, 0, 3, 31.417323))
pocket8 = body.newObject("PartDesign::Pocket", "Pocket007")
pocket8.Profile = sketch17
pocket8.Length = 6.2
pocket8.Reversed = True

# Sketch on XY plane
sketch18 = body.newObject("Sketcher::SketchObject", "Sketch017")
sketch18.AttachmentSupport = (doc.getObject("XY_Plane"), [""])
sketch18.MapMode = "FlatFace"
sketch18.AttachmentOffset = App.Placement(Vector(0, 0, -8.5), App.Rotation())
sketch18.addGeometry(Part.Circle(Vector(52, 31, 0), Vector(0, 0, 1), 5), False)
sketch18.addConstraint(Sketcher.Constraint("Diameter", 0, 10.2))
sketch18.addConstraint(Sketcher.Constraint("DistanceX", -1, 1, 0, 3, 52.287205))
sketch18.addConstraint(Sketcher.Constraint("DistanceY", -1, 1, 0, 3, 31.417323))
pocket9 = body.newObject("PartDesign::Pocket", "Pocket008")
pocket9.Profile = sketch18
pocket9.Length = 2.6
pocket9.Reversed = True

doc.recompute()
